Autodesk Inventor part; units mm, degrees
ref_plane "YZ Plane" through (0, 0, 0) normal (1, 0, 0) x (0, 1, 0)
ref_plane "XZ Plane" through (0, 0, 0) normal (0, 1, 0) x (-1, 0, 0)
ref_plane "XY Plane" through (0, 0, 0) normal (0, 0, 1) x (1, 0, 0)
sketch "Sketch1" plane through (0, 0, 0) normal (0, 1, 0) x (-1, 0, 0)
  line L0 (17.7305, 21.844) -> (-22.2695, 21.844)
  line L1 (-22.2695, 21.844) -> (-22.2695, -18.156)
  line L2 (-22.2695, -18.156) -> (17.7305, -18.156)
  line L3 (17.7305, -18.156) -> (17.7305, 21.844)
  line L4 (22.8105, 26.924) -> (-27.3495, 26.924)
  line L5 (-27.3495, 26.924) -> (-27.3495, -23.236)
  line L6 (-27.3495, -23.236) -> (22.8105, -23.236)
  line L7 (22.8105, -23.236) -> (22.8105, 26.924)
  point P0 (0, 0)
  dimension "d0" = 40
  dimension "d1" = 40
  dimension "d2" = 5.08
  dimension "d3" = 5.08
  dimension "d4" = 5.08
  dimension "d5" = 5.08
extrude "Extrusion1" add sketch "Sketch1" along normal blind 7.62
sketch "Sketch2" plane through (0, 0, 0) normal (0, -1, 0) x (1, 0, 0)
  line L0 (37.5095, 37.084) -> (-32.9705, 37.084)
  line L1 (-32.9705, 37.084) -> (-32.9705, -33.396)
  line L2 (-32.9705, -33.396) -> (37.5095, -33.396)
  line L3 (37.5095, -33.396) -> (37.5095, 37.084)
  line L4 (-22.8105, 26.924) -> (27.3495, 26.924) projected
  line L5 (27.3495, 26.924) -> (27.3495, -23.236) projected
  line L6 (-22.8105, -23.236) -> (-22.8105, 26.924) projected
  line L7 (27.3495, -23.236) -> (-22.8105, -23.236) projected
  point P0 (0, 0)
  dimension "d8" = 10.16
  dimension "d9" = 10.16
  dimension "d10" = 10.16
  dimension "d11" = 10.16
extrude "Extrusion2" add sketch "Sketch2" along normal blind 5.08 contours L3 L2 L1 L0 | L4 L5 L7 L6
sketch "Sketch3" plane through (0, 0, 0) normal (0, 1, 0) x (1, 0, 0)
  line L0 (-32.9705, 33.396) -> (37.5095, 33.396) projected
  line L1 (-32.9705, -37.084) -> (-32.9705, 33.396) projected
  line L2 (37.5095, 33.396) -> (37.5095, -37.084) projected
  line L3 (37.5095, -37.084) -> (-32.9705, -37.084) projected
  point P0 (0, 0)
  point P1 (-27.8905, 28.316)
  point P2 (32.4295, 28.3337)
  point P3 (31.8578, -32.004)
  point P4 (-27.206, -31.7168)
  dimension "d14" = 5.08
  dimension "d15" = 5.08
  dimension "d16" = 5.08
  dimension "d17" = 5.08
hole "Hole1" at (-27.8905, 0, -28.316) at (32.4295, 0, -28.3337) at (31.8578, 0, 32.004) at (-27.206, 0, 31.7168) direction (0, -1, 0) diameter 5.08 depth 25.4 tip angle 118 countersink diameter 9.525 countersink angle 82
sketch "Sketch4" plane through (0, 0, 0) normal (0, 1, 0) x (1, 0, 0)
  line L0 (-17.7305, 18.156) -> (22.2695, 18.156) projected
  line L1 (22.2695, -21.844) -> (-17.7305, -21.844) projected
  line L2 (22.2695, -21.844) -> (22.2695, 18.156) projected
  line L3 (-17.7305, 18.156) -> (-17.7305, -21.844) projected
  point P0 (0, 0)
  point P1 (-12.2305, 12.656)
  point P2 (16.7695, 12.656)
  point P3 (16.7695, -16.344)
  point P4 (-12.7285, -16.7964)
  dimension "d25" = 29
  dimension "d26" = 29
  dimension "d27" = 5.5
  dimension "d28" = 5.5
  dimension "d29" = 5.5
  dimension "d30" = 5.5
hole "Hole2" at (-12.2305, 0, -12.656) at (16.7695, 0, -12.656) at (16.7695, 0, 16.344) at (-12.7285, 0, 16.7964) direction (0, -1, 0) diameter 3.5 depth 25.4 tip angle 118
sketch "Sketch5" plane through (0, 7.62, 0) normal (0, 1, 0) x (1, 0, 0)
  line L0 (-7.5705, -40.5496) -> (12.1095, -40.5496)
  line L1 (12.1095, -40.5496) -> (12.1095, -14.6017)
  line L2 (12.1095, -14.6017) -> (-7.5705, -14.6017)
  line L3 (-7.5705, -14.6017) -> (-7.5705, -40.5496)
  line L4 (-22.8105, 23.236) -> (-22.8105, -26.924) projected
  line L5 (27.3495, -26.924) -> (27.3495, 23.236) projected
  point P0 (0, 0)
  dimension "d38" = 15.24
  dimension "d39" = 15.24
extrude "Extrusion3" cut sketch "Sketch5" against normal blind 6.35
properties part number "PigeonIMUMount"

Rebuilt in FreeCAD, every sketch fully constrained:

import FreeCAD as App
import Part
import Sketcher

V = App.Vector
Q = App.Units.Quantity

doc = App.newDocument("Part")
params = doc.addObject("Spreadsheet::Sheet", "Params")
for row, (alias, value) in enumerate([
    ("pad1_length", "0.3 in"),
    ("pad2_length", "0.2 in"),
    ("sketch3_diameter", "0.2 in"),
    ("hole_diameter", "0.2 in"),
    ("hole_depth", "1 in"),
    ("hole_csink_diameter", "0.375 in"),
    ("hole2_diameter", "0.1377953 in"),
    ("hole2_depth", "1 in"),
    ("pocket1_length", "0.25 in"),
], start=1):
    params.set(f"A{row}", alias)
    params.set(f"B{row}", "=" + value)
    params.setAlias(f"B{row}", alias)

body = doc.addObject("PartDesign::Body", "Body")

sketch1 = doc.addObject("Sketcher::SketchObject", "Sketch")
body.addObject(sketch1)
sketch1.AttachmentSupport = (doc.XZ_Plane, [""])
sketch1.MapMode = "FlatFace"
sketch1.addGeometry([
    Part.LineSegment(V(-23, -23, 0), V(-23, 27, 0)),
    Part.LineSegment(V(-23, 27, 0), V(27, 27, 0)),
    Part.LineSegment(V(27, 27, 0), V(27, -23, 0)),
    Part.LineSegment(V(27, -23, 0), V(-23, -23, 0)),
    Part.LineSegment(V(22, 22, 0), V(-18, 22, 0)),
    Part.LineSegment(V(-18, 22, 0), V(-18, -18, 0)),
    Part.LineSegment(V(-18, -18, 0), V(22, -18, 0)),
    Part.LineSegment(V(22, -18, 0), V(22, 22, 0)),
], False)
sketch1.addConstraint([
    Sketcher.Constraint("Coincident", 0, 2, 1, 1),
    Sketcher.Constraint("Coincident", 1, 2, 2, 1),
    Sketcher.Constraint("Coincident", 2, 2, 3, 1),
    Sketcher.Constraint("Coincident", 3, 2, 0, 1),
    Sketcher.Constraint("Coincident", 4, 2, 5, 1),
    Sketcher.Constraint("Coincident", 5, 2, 6, 1),
    Sketcher.Constraint("Coincident", 6, 2, 7, 1),
    Sketcher.Constraint("Coincident", 7, 2, 4, 1),
    Sketcher.Constraint("Vertical", 0),
    Sketcher.Constraint("Horizontal", 1),
    Sketcher.Constraint("Vertical", 2),
    Sketcher.Constraint("Horizontal", 3),
    Sketcher.Constraint("Horizontal", 4),
    Sketcher.Constraint("Vertical", 5),
    Sketcher.Constraint("Horizontal", 6),
    Sketcher.Constraint("Vertical", 7),
    Sketcher.Constraint("Equal", 3, 0),
    Sketcher.Constraint("Equal", 6, 5),
    Sketcher.Constraint("DistanceX", 0, 2, 4, 2, Q("0.2 in")),
    Sketcher.Constraint("DistanceY", 4, 2, 0, 2, Q("0.2 in")),
    Sketcher.Constraint("DistanceY", 3, 2, 5, 2, Q("0.2 in")),
    Sketcher.Constraint("DistanceX", 4, 2, 4, 1, Q("1.5748 in")),
    Sketcher.Constraint("DistanceY", -1, 1, 0, 2, Q("1.06 in")),
    Sketcher.Constraint("DistanceX", 0, 2, -1, 1, 22.8105),
])
pad1 = doc.addObject("PartDesign::Pad", "Pad")
body.addObject(pad1)
pad1.Profile = sketch1
pad1.setExpression("Length", "Params.pad1_length")
pad1.Reversed = True

sketch2 = doc.addObject("Sketcher::SketchObject", "Sketch001")
body.addObject(sketch2)
sketch2.AttachmentSupport = (doc.XZ_Plane, [""])
sketch2.MapMode = "FlatFace"
sketch2.addGeometry([
    Part.LineSegment(V(38, -33, 0), V(38, 37, 0)),
    Part.LineSegment(V(38, 37, 0), V(-33, 37, 0)),
    Part.LineSegment(V(-33, 37, 0), V(-33, -33, 0)),
    Part.LineSegment(V(-33, -33, 0), V(38, -33, 0)),
], False)
sketch2.addConstraint([
    Sketcher.Constraint("Coincident", 0, 2, 1, 1),
    Sketcher.Constraint("Coincident", 1, 2, 2, 1),
    Sketcher.Constraint("Coincident", 2, 2, 3, 1),
    Sketcher.Constraint("Coincident", 3, 2, 0, 1),
    Sketcher.Constraint("Vertical", 0),
    Sketcher.Constraint("Horizontal", 1),
    Sketcher.Constraint("Vertical", 2),
    Sketcher.Constraint("Horizontal", 3),
    Sketcher.Constraint("Equal", 3, 0),
    Sketcher.Constraint("DistanceY", -1, 1, 0, 2, Q("1.46 in")),
    Sketcher.Constraint("DistanceX", 1, 2, 1, 1, Q("2.7748 in")),
    Sketcher.Constraint("DistanceX", -1, 1, 0, 2, 37.5095),
])
pad2 = doc.addObject("PartDesign::Pad", "Pad001")
body.addObject(pad2)
pad2.Profile = sketch2
pad2.setExpression("Length", "Params.pad2_length")

sketch3 = doc.addObject("Sketcher::SketchObject", "Sketch002")
body.addObject(sketch3)
sketch3.AttachmentSupport = (doc.XZ_Plane, [""])
sketch3.MapMode = "FlatFace"
sketch3.addGeometry([
    Part.Circle(V(-27.9, -28.3, 0), V(0, 0, 1), 2.5),
    Part.Circle(V(32.4, -28.3, 0), V(0, 0, 1), 2.5),
    Part.Circle(V(31.9, 32, 0), V(0, 0, 1), 2.5),
    Part.Circle(V(-27.2, 31.7, 0), V(0, 0, 1), 2.5),
], False)
sketch3.addConstraint([
    Sketcher.Constraint("Equal", 0, 1),
    Sketcher.Constraint("Equal", 1, 2),
    Sketcher.Constraint("Equal", 2, 3),
    Sketcher.Constraint("Diameter", 0, Q("0.2 in")),
    Sketcher.Constraint("DistanceY", -1, 1, 2, 3, Q("1.26 in")),
    Sketcher.Constraint("DistanceY", 0, 3, -1, 1, Q("1.1148 in")),
    Sketcher.Constraint("DistanceY", 1, 3, -1, 1, Q("1.1155 in")),
    Sketcher.Constraint("DistanceX", 3, 3, -1, 1, Q("1.0711 in")),
    Sketcher.Constraint("DistanceY", -1, 1, 3, 3, Q("1.2487 in")),
    Sketcher.Constraint("DistanceX", 0, 3, 1, 3, Q("2.3748 in")),
    Sketcher.Constraint("DistanceX", 2, 3, 1, 3, Q("0.0225 in")),
    Sketcher.Constraint("DistanceX", 0, 3, -1, 1, 27.8905),
])
sketch3.setExpression("Constraints[3]", "Params.sketch3_diameter")
doc.recompute()
hole = doc.addObject("PartDesign::Hole", "Hole")
body.addObject(hole)
hole.Profile = sketch3
hole.ThreadType = "None"
hole.setExpression("Diameter", "Params.hole_diameter")
hole.DepthType = "Dimension"
hole.setExpression("Depth", "Params.hole_depth")
hole.DrillPoint = "Angled"
hole.DrillPointAngle = 118
hole.HoleCutType = "Countersink"
hole.setExpression("HoleCutDiameter", "Params.hole_csink_diameter")
hole.HoleCutCountersinkAngle = 82
hole.Reversed = True

sketch4 = doc.addObject("Sketcher::SketchObject", "Sketch003")
body.addObject(sketch4)
sketch4.AttachmentSupport = (doc.XZ_Plane, [""])
sketch4.MapMode = "FlatFace"
sketch4.addGeometry([
    Part.Circle(V(-12.2, -12.7, 0), V(0, 0, 1), 1.8),
    Part.Circle(V(16.8, -12.7, 0), V(0, 0, 1), 1.8),
    Part.Circle(V(16.8, 16.3, 0), V(0, 0, 1), 1.8),
    Part.Circle(V(-12.7, 16.8, 0), V(0, 0, 1), 1.8),
], False)
sketch4.addConstraint([
    Sketcher.Constraint("Equal", 0, 1),
    Sketcher.Constraint("Equal", 1, 2),
    Sketcher.Constraint("Equal", 2, 3),
    Sketcher.Constraint("Horizontal", 0, 3, 1, 3),
    Sketcher.Constraint("Vertical", 1, 3, 2, 3),
    Sketcher.Constraint("Diameter", 0, Q("0.1378 in")),
    Sketcher.Constraint("DistanceX", 3, 3, 0, 3, Q("0.0196 in")),
    Sketcher.Constraint("DistanceY", 2, 3, 3, 3, Q("0.0178 in")),
    Sketcher.Constraint("DistanceX", 0, 3, -1, 1, 12.2305),
    Sketcher.Constraint("DistanceY", 0, 3, -1, 1, 12.656),
    Sketcher.Constraint("DistanceX", -1, 1, 1, 3, 16.7695),
    Sketcher.Constraint("DistanceY", -1, 1, 2, 3, 16.344),
])
doc.recompute()
hole2 = doc.addObject("PartDesign::Hole", "Hole001")
body.addObject(hole2)
hole2.Profile = sketch4
hole2.ThreadType = "None"
hole2.setExpression("Diameter", "Params.hole2_diameter")
hole2.DepthType = "Dimension"
hole2.setExpression("Depth", "Params.hole2_depth")
hole2.DrillPoint = "Angled"
hole2.DrillPointAngle = 118
hole2.Reversed = True

sketch5 = doc.addObject("Sketcher::SketchObject", "Sketch004")
body.addObject(sketch5)
sketch5.AttachmentSupport = (doc.XZ_Plane, [""])
sketch5.MapMode = "FlatFace"
sketch5.AttachmentOffset = App.Placement(V(0, 0, -0.3 * 25.4), App.Rotation())
sketch5.addGeometry([
    Part.LineSegment(V(-8, 15, 0), V(-8, 41, 0)),
    Part.LineSegment(V(-8, 41, 0), V(12, 41, 0)),
    Part.LineSegment(V(12, 41, 0), V(12, 15, 0)),
    Part.LineSegment(V(12, 15, 0), V(-8, 15, 0)),
], False)
sketch5.addConstraint([
    Sketcher.Constraint("Coincident", 0, 2, 1, 1),
    Sketcher.Constraint("Coincident", 1, 2, 2, 1),
    Sketcher.Constraint("Coincident", 2, 2, 3, 1),
    Sketcher.Constraint("Coincident", 3, 2, 0, 1),
    Sketcher.Constraint("Vertical", 0),
    Sketcher.Constraint("Horizontal", 1),
    Sketcher.Constraint("Vertical", 2),
    Sketcher.Constraint("Horizontal", 3),
    Sketcher.Constraint("DistanceX", 1, 1, 1, 2, Q("0.7748 in")),
    Sketcher.Constraint("DistanceY", 0, 1, 0, 2, 25.948),
    Sketcher.Constraint("DistanceX", 0, 2, -1, 1, 7.5705),
    Sketcher.Constraint("DistanceY", -1, 1, 0, 2, 40.5496),
])
pocket1 = doc.addObject("PartDesign::Pocket", "Pocket")
body.addObject(pocket1)
pocket1.Profile = sketch5
pocket1.setExpression("Length", "Params.pocket1_length")
pocket1.Reversed = True

doc.recompute()
